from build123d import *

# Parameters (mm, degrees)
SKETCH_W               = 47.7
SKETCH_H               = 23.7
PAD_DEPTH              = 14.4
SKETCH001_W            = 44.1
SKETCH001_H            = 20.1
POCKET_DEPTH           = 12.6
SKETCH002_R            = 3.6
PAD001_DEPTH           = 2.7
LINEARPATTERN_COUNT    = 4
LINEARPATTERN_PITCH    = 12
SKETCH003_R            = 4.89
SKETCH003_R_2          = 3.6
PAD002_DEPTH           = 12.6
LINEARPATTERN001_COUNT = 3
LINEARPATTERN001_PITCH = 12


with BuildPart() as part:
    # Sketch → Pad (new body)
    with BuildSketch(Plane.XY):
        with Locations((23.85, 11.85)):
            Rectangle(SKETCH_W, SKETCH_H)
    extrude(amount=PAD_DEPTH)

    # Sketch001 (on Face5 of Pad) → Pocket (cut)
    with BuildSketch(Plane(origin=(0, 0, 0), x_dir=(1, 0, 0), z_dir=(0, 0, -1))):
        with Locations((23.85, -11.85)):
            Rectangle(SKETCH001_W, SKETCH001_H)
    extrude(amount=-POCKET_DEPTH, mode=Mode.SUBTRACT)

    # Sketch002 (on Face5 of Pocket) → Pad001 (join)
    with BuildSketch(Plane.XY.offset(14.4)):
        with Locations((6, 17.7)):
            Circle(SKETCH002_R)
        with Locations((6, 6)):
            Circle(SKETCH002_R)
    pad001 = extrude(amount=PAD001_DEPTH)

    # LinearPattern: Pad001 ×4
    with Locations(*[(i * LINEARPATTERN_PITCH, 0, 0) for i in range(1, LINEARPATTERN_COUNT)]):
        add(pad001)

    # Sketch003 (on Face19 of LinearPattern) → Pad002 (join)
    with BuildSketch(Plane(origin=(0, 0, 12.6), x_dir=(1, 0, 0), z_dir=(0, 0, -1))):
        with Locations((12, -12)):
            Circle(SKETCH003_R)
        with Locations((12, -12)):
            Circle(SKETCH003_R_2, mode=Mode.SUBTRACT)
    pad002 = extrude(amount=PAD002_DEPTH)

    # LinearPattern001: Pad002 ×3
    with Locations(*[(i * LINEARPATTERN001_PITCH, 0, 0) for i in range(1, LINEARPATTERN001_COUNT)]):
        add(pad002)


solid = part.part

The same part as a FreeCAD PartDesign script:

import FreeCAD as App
import Part
import Sketcher

V = App.Vector
Q = App.Units.Quantity


def add_polygon(sketch, points):
    """Adds a closed chain of lines whose ends are joined by coincident constraints."""
    first, n = sketch.GeometryCount, len(points)
    for a, b in zip(points, points[1:] + points[:1]):
        sketch.addGeometry(Part.LineSegment(App.Vector(*a, 0), App.Vector(*b, 0)), False)
    for i in range(n):
        sketch.addConstraint(Sketcher.Constraint("Coincident", first + i, 2, first + (i + 1) % n, 1))

doc = App.newDocument("Part")
body = doc.addObject("PartDesign::Body", "Body")

# Sketch on XY plane
sketch1 = body.newObject("Sketcher::SketchObject", "Sketch")
sketch1.AttachmentSupport = (doc.getObject("XY_Plane"), [""])
sketch1.MapMode = "FlatFace"
add_polygon(sketch1, [(0, 23.7), (0, 0), (47.7, 0), (47.7, 23.7)])  # lines 0-3
sketch1.addConstraint(Sketcher.Constraint("Vertical", 0))
sketch1.addConstraint(Sketcher.Constraint("Horizontal", 1))
sketch1.addConstraint(Sketcher.Constraint("Vertical", 2))
sketch1.addConstraint(Sketcher.Constraint("Horizontal", 3))
sketch1.addConstraint(Sketcher.Constraint("Coincident", 0, 2, -1, 1))
sketch1.addConstraint(Sketcher.Constraint("DistanceX", 1, 1, 1, 2, Q("47.7 mm")))
sketch1.addConstraint(Sketcher.Constraint("DistanceY", 0, 2, 0, 1, Q("23.7 mm")))
pad1 = body.newObject("PartDesign::Pad", "Pad")
pad1.Profile = sketch1
pad1.Length = 14.4

# Sketch on XY plane
sketch2 = body.newObject("Sketcher::SketchObject", "Sketch001")
sketch2.AttachmentSupport = (doc.getObject("XY_Plane"), [""])
sketch2.MapMode = "FlatFace"
add_polygon(sketch2, [(1.8, 1.8), (1.8, 21.9), (45.9, 21.9), (45.9, 1.8)])  # lines 0-3
sketch2.addConstraint(Sketcher.Constraint("Vertical", 0))
sketch2.addConstraint(Sketcher.Constraint("Horizontal", 1))
sketch2.addConstraint(Sketcher.Constraint("Vertical", 2))
sketch2.addConstraint(Sketcher.Constraint("Horizontal", 3))
sketch2.addConstraint(Sketcher.Constraint("DistanceX", 1, 1, 1, 2, Q("44.1 mm")))
sketch2.addConstraint(Sketcher.Constraint("DistanceY", 0, 1, 0, 2, Q("20.1 mm")))
sketch2.addConstraint(Sketcher.Constraint("DistanceX", -1, 1, 0, 2, Q("1.8 mm")))
sketch2.addConstraint(Sketcher.Constraint("DistanceY", -1, 1, 0, 2, Q("21.9 mm")))
pocket1 = body.newObject("PartDesign::Pocket", "Pocket")
pocket1.Profile = sketch2
pocket1.Length = 12.6
pocket1.Reversed = True

# Sketch on XY plane
sketch3 = body.newObject("Sketcher::SketchObject", "Sketch002")
sketch3.AttachmentSupport = (doc.getObject("XY_Plane"), [""])
sketch3.MapMode = "FlatFace"
sketch3.AttachmentOffset = App.Placement(V(0, 0, 14.4), App.Rotation())
sketch3.addGeometry(Part.Circle(V(6, 17.7, 0), V(0, 0, 1), 3.6), False)
sketch3.addGeometry(Part.Circle(V(6, 6, 0), V(0, 0, 1), 3.6), False)
sketch3.addConstraint(Sketcher.Constraint("Equal", 0, 1))
sketch3.addConstraint(Sketcher.Constraint("Vertical", 0, 3, 1, 3))
sketch3.addConstraint(Sketcher.Constraint("Diameter", 0, Q("7.2 mm")))
sketch3.addConstraint(Sketcher.Constraint("DistanceX", -1, 1, 0, 3, Q("6 mm")))
sketch3.addConstraint(Sketcher.Constraint("DistanceY", -1, 1, 1, 3, Q("6 mm")))
sketch3.addConstraint(Sketcher.Constraint("DistanceY", -1, 1, 0, 3, Q("17.7 mm")))
pad2 = body.newObject("PartDesign::Pad", "Pad001")
pad2.Profile = sketch3
pad2.Length = 2.7
doc.recompute()

linearpattern = body.newObject("PartDesign::LinearPattern", "LinearPattern")
linearpattern.Originals = [pad2]
linearpattern.Direction = (doc.getObject("X_Axis"), [""])
linearpattern.Mode = "offset"
linearpattern.Offset = 12
linearpattern.Occurrences = 4
body.Tip = linearpattern

# Sketch on XY plane
sketch4 = body.newObject("Sketcher::SketchObject", "Sketch003")
sketch4.AttachmentSupport = (doc.getObject("XY_Plane"), [""])
sketch4.MapMode = "FlatFace"
sketch4.AttachmentOffset = App.Placement(V(0, 0, 12.6), App.Rotation())
sketch4.addGeometry(Part.Circle(V(12, 12, 0), V(0, 0, 1), 4.89), False)
sketch4.addGeometry(Part.Circle(V(12, 12, 0), V(0, 0, 1), 3.6), False)
sketch4.addConstraint(Sketcher.Constraint("Coincident", 1, 3, 0, 3))
sketch4.addConstraint(Sketcher.Constraint("Diameter", 1, Q("7.2 mm")))
sketch4.addConstraint(Sketcher.Constraint("Diameter", 0, Q("9.78 mm")))
sketch4.addConstraint(Sketcher.Constraint("DistanceX", -1, 1, 0, 3, Q("12 mm")))
sketch4.addConstraint(Sketcher.Constraint("DistanceY", -1, 1, 0, 3, Q("12 mm")))
pad3 = body.newObject("PartDesign::Pad", "Pad002")
pad3.Profile = sketch4
pad3.Length = 12.6
pad3.Reversed = True
doc.recompute()

linearpattern2 = body.newObject("PartDesign::LinearPattern", "LinearPattern001")
linearpattern2.Originals = [pad3]
linearpattern2.Direction = (doc.getObject("X_Axis"), [""])
linearpattern2.Mode = "offset"
linearpattern2.Offset = 12
linearpattern2.Occurrences = 3
body.Tip = linearpattern2

doc.recompute()
